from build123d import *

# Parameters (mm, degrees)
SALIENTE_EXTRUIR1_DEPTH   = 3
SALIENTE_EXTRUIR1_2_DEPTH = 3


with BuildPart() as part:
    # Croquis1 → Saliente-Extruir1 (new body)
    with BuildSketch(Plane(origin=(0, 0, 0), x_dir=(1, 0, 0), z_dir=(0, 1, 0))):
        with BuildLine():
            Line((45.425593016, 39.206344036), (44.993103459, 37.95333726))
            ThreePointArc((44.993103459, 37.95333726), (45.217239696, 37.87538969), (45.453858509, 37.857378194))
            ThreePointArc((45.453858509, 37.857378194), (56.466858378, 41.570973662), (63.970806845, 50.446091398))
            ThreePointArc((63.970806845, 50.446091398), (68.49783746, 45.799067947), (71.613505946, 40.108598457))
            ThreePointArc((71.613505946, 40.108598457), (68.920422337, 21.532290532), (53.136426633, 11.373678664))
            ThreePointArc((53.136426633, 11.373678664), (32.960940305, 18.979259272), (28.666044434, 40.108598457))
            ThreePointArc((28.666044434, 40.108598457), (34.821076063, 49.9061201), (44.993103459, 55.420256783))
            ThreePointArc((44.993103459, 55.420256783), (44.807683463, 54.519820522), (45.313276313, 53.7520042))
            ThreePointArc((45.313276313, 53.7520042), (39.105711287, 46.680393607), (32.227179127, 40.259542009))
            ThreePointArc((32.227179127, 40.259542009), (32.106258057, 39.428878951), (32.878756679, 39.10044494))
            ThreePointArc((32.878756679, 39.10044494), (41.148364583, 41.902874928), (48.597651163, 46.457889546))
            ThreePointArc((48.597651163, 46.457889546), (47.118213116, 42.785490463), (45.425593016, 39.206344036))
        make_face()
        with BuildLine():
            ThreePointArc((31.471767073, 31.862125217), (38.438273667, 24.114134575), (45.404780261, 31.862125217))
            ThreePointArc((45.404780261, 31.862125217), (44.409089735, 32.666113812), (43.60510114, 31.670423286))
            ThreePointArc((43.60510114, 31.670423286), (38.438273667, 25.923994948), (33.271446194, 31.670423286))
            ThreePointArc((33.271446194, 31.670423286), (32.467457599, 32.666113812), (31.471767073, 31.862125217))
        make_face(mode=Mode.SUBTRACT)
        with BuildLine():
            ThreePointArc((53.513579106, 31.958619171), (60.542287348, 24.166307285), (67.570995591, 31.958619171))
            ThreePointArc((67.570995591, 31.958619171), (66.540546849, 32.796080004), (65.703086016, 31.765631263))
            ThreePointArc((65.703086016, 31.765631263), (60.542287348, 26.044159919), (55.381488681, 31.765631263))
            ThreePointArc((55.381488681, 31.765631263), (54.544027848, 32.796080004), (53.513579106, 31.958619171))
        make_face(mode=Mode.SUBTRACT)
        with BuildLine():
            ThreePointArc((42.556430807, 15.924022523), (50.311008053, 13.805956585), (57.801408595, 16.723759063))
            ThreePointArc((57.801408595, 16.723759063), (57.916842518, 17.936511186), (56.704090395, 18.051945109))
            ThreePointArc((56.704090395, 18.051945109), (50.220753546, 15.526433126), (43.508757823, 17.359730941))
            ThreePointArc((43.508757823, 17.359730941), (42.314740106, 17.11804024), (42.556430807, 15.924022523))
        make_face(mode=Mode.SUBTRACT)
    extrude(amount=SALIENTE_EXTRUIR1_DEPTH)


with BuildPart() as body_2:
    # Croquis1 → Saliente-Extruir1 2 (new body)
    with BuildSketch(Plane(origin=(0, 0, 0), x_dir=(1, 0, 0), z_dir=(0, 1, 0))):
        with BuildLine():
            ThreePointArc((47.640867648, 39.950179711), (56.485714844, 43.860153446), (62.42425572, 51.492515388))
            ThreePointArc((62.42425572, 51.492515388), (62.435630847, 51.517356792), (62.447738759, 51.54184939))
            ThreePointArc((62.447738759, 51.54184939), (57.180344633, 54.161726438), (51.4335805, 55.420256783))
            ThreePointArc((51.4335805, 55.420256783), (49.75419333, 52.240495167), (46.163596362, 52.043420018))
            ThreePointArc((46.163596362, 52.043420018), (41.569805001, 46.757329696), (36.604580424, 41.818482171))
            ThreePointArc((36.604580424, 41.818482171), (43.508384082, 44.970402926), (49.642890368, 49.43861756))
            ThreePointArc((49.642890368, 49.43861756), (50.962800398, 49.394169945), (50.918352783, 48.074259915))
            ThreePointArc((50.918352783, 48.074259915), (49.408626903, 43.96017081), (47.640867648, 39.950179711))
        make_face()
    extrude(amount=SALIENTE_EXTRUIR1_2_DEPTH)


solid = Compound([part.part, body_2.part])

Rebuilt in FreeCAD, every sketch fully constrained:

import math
import FreeCAD as App
import Part
import Sketcher
from FreeCAD import Vector
Q = App.Units.Quantity

doc = App.newDocument("Part")
body = doc.addObject("PartDesign::Body", "Body")

sketch1 = doc.addObject("Sketcher::SketchObject", "Sketch")
body.addObject(sketch1)
sketch1.AttachmentSupport = (doc.XZ_Plane, [""])
sketch1.MapMode = "FlatFace"
sketch1.addGeometry(Part.LineSegment(Vector(44.993103, -37.953337, 0), Vector(45.425593, -39.206344, 0)), False)
sketch1.addGeometry(Part.ArcOfCircle(Part.Circle(Vector(-14.601756, -69.783781, 0), Vector(0, 0, 1), 67.366626), math.radians(20.258298), math.radians(26.993918)), False)
sketch1.addGeometry(Part.ArcOfCircle(Part.Circle(Vector(24.446093, -77.586629, 0), Vector(0, 0, 1), 39.39919), math.radians(52.193528), math.radians(77.641292)), False)
sketch1.addGeometry(Part.ArcOfCircle(Part.Circle(Vector(32.705558, -39.765771, 0), Vector(0, 0, 1), 0.6875), math.radians(75.408509), math.radians(225.907122)), False)
sketch1.addGeometry(Part.ArcOfCircle(Part.Circle(Vector(-28.891931, -112.630088, 0), Vector(0, 0, 1), 94.72614), math.radians(38.430224), math.radians(49.817899)), False)
sketch1.addGeometry(Part.ArcOfCircle(Part.Circle(Vector(45.987316, -54.746217, 0), Vector(0, 0, 1), 1.201161), math.radians(124.135835), math.radians(214.135835)), False)
sketch1.addGeometry(Part.ArcOfCircle(Part.Circle(Vector(50.416259, -33.276734, 0), Vector(0, 0, 1), 22.797943), math.radians(-162.562204), math.radians(-103.761401)), False)
sketch1.addGeometry(Part.ArcOfCircle(Part.Circle(Vector(49.929591, -33.4296, 0), Vector(0, 0, 1), 22.287832), math.radians(81.72741), math.radians(197.437796)), False)
sketch1.addGeometry(Part.ArcOfCircle(Part.Circle(Vector(49.879205, -33.776142, 0), Vector(0, 0, 1), 22.638017), math.radians(-16.243891), math.radians(81.72741)), False)
sketch1.addGeometry(Part.ArcOfCircle(Part.Circle(Vector(49.215808, -31.543508, 0), Vector(0, 0, 1), 23.979525), math.radians(-52.025075), math.radians(-20.927324)), False)
sketch1.addGeometry(Part.ArcOfCircle(Part.Circle(Vector(44.299101, -59.468731, 0), Vector(0, 0, 1), 21.642182), math.radians(24.639066), math.radians(86.941429)), False)
sketch1.addGeometry(Part.ArcOfCircle(Part.Circle(Vector(45.40478, -38.775881, 0), Vector(0, 0, 1), 0.919813), math.radians(86.941429), math.radians(116.587624)), False)
sketch1.addGeometry(Part.ArcOfCircle(Part.Circle(Vector(43.032594, -16.641877, 0), Vector(0, 0, 1), 0.861421), math.radians(123.556916), math.radians(303.556916)), False)
sketch1.addGeometry(Part.ArcOfCircle(Part.Circle(Vector(49.639708, -26.602623, 0), Vector(0, 0, 1), 11.09142), math.radians(50.437229), math.radians(123.556916)), False)
sketch1.addGeometry(Part.ArcOfCircle(Part.Circle(Vector(57.252749, -17.387852, 0), Vector(0, 0, 1), 0.861421), math.radians(-129.562771), math.radians(50.437229)), False)
sketch1.addGeometry(Part.ArcOfCircle(Part.Circle(Vector(49.639708, -26.602623, 0), Vector(0, 0, 1), 12.814262), math.radians(50.437229), math.radians(123.556916)), False)
sketch1.addGeometry(Part.ArcOfCircle(Part.Circle(Vector(54.447534, -31.862125, 0), Vector(0, 0, 1), 0.938926), math.radians(-174.101268), math.radians(5.898732)), False)
sketch1.addGeometry(Part.ArcOfCircle(Part.Circle(Vector(60.542287, -31.23243, 0), Vector(0, 0, 1), 5.18827), math.radians(-5.898732), math.radians(185.898732)), False)
sketch1.addGeometry(Part.ArcOfCircle(Part.Circle(Vector(66.637041, -31.862125, 0), Vector(0, 0, 1), 0.938926), math.radians(174.101268), math.radians(354.101268)), False)
sketch1.addGeometry(Part.ArcOfCircle(Part.Circle(Vector(60.542287, -31.23243, 0), Vector(0, 0, 1), 7.066123), math.radians(-5.898732), math.radians(185.898732)), False)
sketch1.addGeometry(Part.ArcOfCircle(Part.Circle(Vector(32.371607, -31.766274, 0), Vector(0, 0, 1), 0.90493), math.radians(-173.919777), math.radians(6.080223)), False)
sketch1.addGeometry(Part.ArcOfCircle(Part.Circle(Vector(38.438274, -31.120053, 0), Vector(0, 0, 1), 5.196058), math.radians(-6.080223), math.radians(186.080223)), False)
sketch1.addGeometry(Part.ArcOfCircle(Part.Circle(Vector(44.504941, -31.766274, 0), Vector(0, 0, 1), 0.90493), math.radians(173.919777), math.radians(353.919777)), False)
sketch1.addGeometry(Part.ArcOfCircle(Part.Circle(Vector(38.438274, -31.120053, 0), Vector(0, 0, 1), 7.005918), math.radians(-6.080223), math.radians(186.080223)), False)
sketch1.addConstraint(Sketcher.Constraint("Coincident", 0, 2, 1, 2))
sketch1.addConstraint(Sketcher.Constraint("Coincident", 1, 1, 2, 1))
sketch1.addConstraint(Sketcher.Constraint("Coincident", 2, 2, 3, 1))
sketch1.addConstraint(Sketcher.Constraint("Coincident", 3, 2, 4, 2))
sketch1.addConstraint(Sketcher.Constraint("Coincident", 4, 1, 5, 1))
sketch1.addConstraint(Sketcher.Constraint("Coincident", 5, 2, 6, 2))
sketch1.addConstraint(Sketcher.Constraint("Coincident", 6, 1, 7, 2))
sketch1.addConstraint(Sketcher.Constraint("Coincident", 7, 1, 8, 2))
sketch1.addConstraint(Sketcher.Constraint("Coincident", 8, 1, 9, 2))
sketch1.addConstraint(Sketcher.Constraint("Coincident", 9, 1, 10, 1))
sketch1.addConstraint(Sketcher.Constraint("Coincident", 10, 2, 11, 1))
sketch1.addConstraint(Sketcher.Constraint("Coincident", 11, 2, 0, 1))
sketch1.addConstraint(Sketcher.Constraint("Coincident", 12, 2, 13, 2))
sketch1.addConstraint(Sketcher.Constraint("Coincident", 13, 1, 14, 1))
sketch1.addConstraint(Sketcher.Constraint("Coincident", 14, 2, 15, 1))
sketch1.addConstraint(Sketcher.Constraint("Coincident", 15, 2, 12, 1))
sketch1.addConstraint(Sketcher.Constraint("Coincident", 16, 2, 17, 2))
sketch1.addConstraint(Sketcher.Constraint("Coincident", 17, 1, 18, 1))
sketch1.addConstraint(Sketcher.Constraint("Coincident", 18, 2, 19, 1))
sketch1.addConstraint(Sketcher.Constraint("Coincident", 19, 2, 16, 1))
sketch1.addConstraint(Sketcher.Constraint("Coincident", 20, 2, 21, 2))
sketch1.addConstraint(Sketcher.Constraint("Coincident", 21, 1, 22, 1))
sketch1.addConstraint(Sketcher.Constraint("Coincident", 22, 2, 23, 1))
sketch1.addConstraint(Sketcher.Constraint("Coincident", 23, 2, 20, 1))
sketch1.addConstraint(Sketcher.Constraint("Coincident", 15, 3, 13, 3))
sketch1.addConstraint(Sketcher.Constraint("Coincident", 19, 3, 17, 3))
sketch1.addConstraint(Sketcher.Constraint("Coincident", 23, 3, 21, 3))
sketch1.addConstraint(Sketcher.Constraint("Radius", 3, Q("0.6875 mm")))
sketch1.addConstraint(Sketcher.Constraint("Radius", 2, Q("39.39919 mm")))
sketch1.addConstraint(Sketcher.Constraint("Radius", 4, Q("94.72614 mm")))
sketch1.addConstraint(Sketcher.Constraint("Radius", 5, Q("1.201161 mm")))
sketch1.addConstraint(Sketcher.Constraint("Radius", 7, Q("22.287832 mm")))
sketch1.addConstraint(Sketcher.Constraint("Radius", 10, Q("21.642182 mm")))
sketch1.addConstraint(Sketcher.Constraint("Radius", 12, Q("0.861421 mm")))
sketch1.addConstraint(Sketcher.Constraint("Radius", 13, Q("11.09142 mm")))
sketch1.addConstraint(Sketcher.Constraint("Radius", 17, Q("5.18827 mm")))
sketch1.addConstraint(Sketcher.Constraint("Radius", 20, Q("0.90493 mm")))
sketch1.addConstraint(Sketcher.Constraint("Radius", 1, Q("67.366626 mm")))
sketch1.addConstraint(Sketcher.Constraint("Radius", 6, Q("22.797943 mm")))
sketch1.addConstraint(Sketcher.Constraint("Radius", 8, Q("22.638017 mm")))
sketch1.addConstraint(Sketcher.Constraint("Radius", 9, Q("23.979525 mm")))
sketch1.addConstraint(Sketcher.Constraint("Radius", 11, Q("0.919813 mm")))
sketch1.addConstraint(Sketcher.Constraint("Radius", 16, Q("0.938926 mm")))
sketch1.addConstraint(Sketcher.Constraint("Radius", 21, Q("5.196058 mm")))
sketch1.addConstraint(Sketcher.Constraint("DistanceY", 7, 3, -1, 1, Q("33.4296 mm")))
sketch1.addConstraint(Sketcher.Constraint("DistanceX", -1, 1, 10, 3, Q("44.299101 mm")))
sketch1.addConstraint(Sketcher.Constraint("DistanceY", 6, 1, -1, 1, Q("40.108598 mm")))
sketch1.addConstraint(Sketcher.Constraint("DistanceY", 8, 1, -1, 1, Q("40.108598 mm")))
sketch1.addConstraint(Sketcher.Constraint("DistanceX", -1, 1, 21, 1, Q("43.605101 mm")))
sketch1.addConstraint(Sketcher.Constraint("DistanceX", 3, 3, 6, 3, Q("17.710701 mm")))
sketch1.addConstraint(Sketcher.Constraint("DistanceX", 2, 3, 7, 3, Q("25.483498 mm")))
sketch1.addConstraint(Sketcher.Constraint("DistanceY", 2, 3, 10, 3, Q("18.117898 mm")))
sketch1.addConstraint(Sketcher.Constraint("DistanceX", 9, 3, 13, 3, Q("0.423899 mm")))
sketch1.addConstraint(Sketcher.Constraint("DistanceY", 16, 3, 15, 3, Q("5.259502 mm")))
sketch1.addConstraint(Sketcher.Constraint("DistanceX", 20, 3, 9, 3, Q("16.844202 mm")))
sketch1.addConstraint(Sketcher.Constraint("DistanceX", 20, 3, 8, 3, Q("17.507599 mm")))
sketch1.addConstraint(Sketcher.Constraint("DistanceX", 3, 3, 2, 2, Q("0.173199 mm")))
sketch1.addConstraint(Sketcher.Constraint("DistanceY", 12, 3, 7, 1, Q("5.268198 mm")))
sketch1.addConstraint(Sketcher.Constraint("DistanceX", 9, 1, 8, 1, Q("7.642699 mm")))
sketch1.addConstraint(Sketcher.Constraint("DistanceY", 9, 1, 1, 1, Q("3.988202 mm")))
sketch1.addConstraint(Sketcher.Constraint("DistanceX", 11, 2, 8, 3, Q("4.886102 mm")))
sketch1.addConstraint(Sketcher.Constraint("DistanceX", 13, 3, 14, 2, Q("8.161701 mm")))
sketch1.addConstraint(Sketcher.Constraint("DistanceY", 13, 3, 15, 2, Q("10.678601 mm")))
sketch1.addConstraint(Sketcher.Constraint("DistanceX", 16, 2, 19, 3, Q("5.160799 mm")))
sketch1.addConstraint(Sketcher.Constraint("DistanceX", 17, 3, 17, 1, Q("5.160799 mm")))
sketch1.addConstraint(Sketcher.Constraint("DistanceY", 22, 2, 21, 1, Q("0.191702 mm")))
sketch1.addConstraint(Sketcher.Constraint("DistanceY", 23, 2, 20, 2, Q("0.191702 mm")))
sketch1.addConstraint(Sketcher.Constraint("DistanceY", 1, 3, -1, 1, Q("69.783781 mm")))
sketch1.addConstraint(Sketcher.Constraint("DistanceY", 2, 3, -1, 1, Q("77.586629 mm")))
sketch1.addConstraint(Sketcher.Constraint("DistanceY", 3, 3, -1, 1, Q("39.765771 mm")))
sketch1.addConstraint(Sketcher.Constraint("DistanceX", 4, 3, -1, 1, Q("28.891931 mm")))
sketch1.addConstraint(Sketcher.Constraint("DistanceX", -1, 1, 6, 3, Q("50.416259 mm")))
sketch1.addConstraint(Sketcher.Constraint("DistanceX", -1, 1, 11, 3, Q("45.40478 mm")))
sketch1.addConstraint(Sketcher.Constraint("DistanceX", -1, 1, 14, 3, Q("57.252749 mm")))
sketch1.addConstraint(Sketcher.Constraint("DistanceY", 17, 3, -1, 1, Q("31.23243 mm")))
sketch1.addConstraint(Sketcher.Constraint("DistanceX", -1, 1, 18, 3, Q("66.637041 mm")))
sketch1.addConstraint(Sketcher.Constraint("DistanceX", -1, 1, 22, 3, Q("44.504941 mm")))
sketch1.addConstraint(Sketcher.Constraint("DistanceX", -1, 1, 3, 2, Q("32.227179 mm")))
sketch1.addConstraint(Sketcher.Constraint("DistanceY", 7, 1, -1, 1, Q("11.373679 mm")))
sketch1.addConstraint(Sketcher.Constraint("DistanceX", -1, 1, 10, 2, Q("45.453859 mm")))
sketch1.addConstraint(Sketcher.Constraint("DistanceY", 12, 2, -1, 1, Q("17.359731 mm")))
sketch1.addConstraint(Sketcher.Constraint("DistanceX", -1, 1, 13, 1, Q("56.70409 mm")))
sketch1.addConstraint(Sketcher.Constraint("DistanceY", 14, 2, -1, 1, Q("16.723759 mm")))
sketch1.addConstraint(Sketcher.Constraint("DistanceX", -1, 1, 16, 2, Q("55.381489 mm")))
sketch1.addConstraint(Sketcher.Constraint("DistanceY", 18, 2, -1, 1, Q("31.958619 mm")))
sketch1.addConstraint(Sketcher.Constraint("DistanceX", -1, 1, 19, 2, Q("53.513579 mm")))
sketch1.addConstraint(Sketcher.Constraint("DistanceX", 3, 3, 5, 3, Q("13.281758 mm")))
sketch1.addConstraint(Sketcher.Constraint("DistanceY", 4, 3, 5, 3, Q("57.883871 mm")))
sketch1.addConstraint(Sketcher.Constraint("DistanceY", 20, 3, 21, 3, Q("0.646222 mm")))
sketch1.addConstraint(Sketcher.Constraint("DistanceY", 11, 3, 21, 3, Q("7.655828 mm")))
sketch1.addConstraint(Sketcher.Constraint("DistanceY", 0, 2, 22, 3, Q("7.44007 mm")))
sketch1.addConstraint(Sketcher.Constraint("DistanceX", 20, 3, 20, 2, Q("0.89984 mm")))
pad1 = doc.addObject("PartDesign::Pad", "Pad")
body.addObject(pad1)
pad1.Profile = sketch1
pad1.Length = 3
pad1.Reversed = True
body2 = doc.addObject("PartDesign::Body", "Body001")

sketch2 = doc.addObject("Sketcher::SketchObject", "Sketch001")
body2.addObject(sketch2)
sketch2.AttachmentSupport = (doc.getObject("XZ_Plane001"), [""])
sketch2.MapMode = "FlatFace"
sketch2.addGeometry(Part.ArcOfCircle(Part.Circle(Vector(44.299101, -59.468731, 0), Vector(0, 0, 1), 19.802556), math.radians(23.752533), math.radians(80.284601)), False)
sketch2.addGeometry(Part.ArcOfCircle(Part.Circle(Vector(63.266155, -51.122027, 0), Vector(0, 0, 1), 0.919813), math.radians(-156.247466), math.radians(-152.843535)), False)
sketch2.addGeometry(Part.ArcOfCircle(Part.Circle(Vector(49.215808, -31.543508, 0), Vector(0, 0, 1), 23.979525), math.radians(-84.693354), math.radians(-56.50933)), False)
sketch2.addGeometry(Part.ArcOfCircle(Part.Circle(Vector(47.784793, -55.313995, 0), Vector(0, 0, 1), 3.650335), math.radians(-1.668117), math.radians(116.367225)), False)
sketch2.addGeometry(Part.ArcOfCircle(Part.Circle(Vector(-28.891931, -112.630088, 0), Vector(0, 0, 1), 96.457641), math.radians(38.911322), math.radians(47.233016)), False)
sketch2.addGeometry(Part.ArcOfCircle(Part.Circle(Vector(24.446093, -77.586629, 0), Vector(0, 0, 1), 37.778157), math.radians(48.166567), math.radians(71.225819)), False)
sketch2.addGeometry(Part.ArcOfCircle(Part.Circle(Vector(50.280622, -48.756439, 0), Vector(0, 0, 1), 0.933846), math.radians(-133.071309), math.radians(46.928691)), False)
sketch2.addGeometry(Part.ArcOfCircle(Part.Circle(Vector(-14.601756, -69.783781, 0), Vector(0, 0, 1), 69.023097), math.radians(18.332168), math.radians(25.608933)), False)
sketch2.addConstraint(Sketcher.Constraint("Tangent", 0, 1, 1, 1))
sketch2.addConstraint(Sketcher.Constraint("Coincident", 1, 2, 2, 2))
sketch2.addConstraint(Sketcher.Constraint("Coincident", 2, 1, 3, 1))
sketch2.addConstraint(Sketcher.Constraint("Coincident", 3, 2, 4, 1))
sketch2.addConstraint(Sketcher.Constraint("Coincident", 4, 2, 5, 2))
sketch2.addConstraint(Sketcher.Constraint("Coincident", 5, 1, 6, 1))
sketch2.addConstraint(Sketcher.Constraint("Coincident", 6, 2, 7, 1))
sketch2.addConstraint(Sketcher.Constraint("Coincident", 7, 2, 0, 2))
sketch2.addConstraint(Sketcher.Constraint("Radius", 4, Q("96.457641 mm")))
sketch2.addConstraint(Sketcher.Constraint("Radius", 0, Q("19.802556 mm")))
sketch2.addConstraint(Sketcher.Constraint("Radius", 1, Q("0.919813 mm")))
sketch2.addConstraint(Sketcher.Constraint("Radius", 2, Q("23.979525 mm")))
sketch2.addConstraint(Sketcher.Constraint("Radius", 3, Q("3.650335 mm")))
sketch2.addConstraint(Sketcher.Constraint("Radius", 5, Q("37.778157 mm")))
sketch2.addConstraint(Sketcher.Constraint("Radius", 6, Q("0.933846 mm")))
sketch2.addConstraint(Sketcher.Constraint("Radius", 7, Q("69.023097 mm")))
sketch2.addConstraint(Sketcher.Constraint("DistanceX", -1, 1, 0, 3, Q("44.299101 mm")))
sketch2.addConstraint(Sketcher.Constraint("DistanceY", 5, 3, 0, 3, Q("18.117898 mm")))
sketch2.addConstraint(Sketcher.Constraint("DistanceX", 5, 3, 3, 3, Q("23.3387 mm")))
sketch2.addConstraint(Sketcher.Constraint("DistanceX", 0, 1, 1, 3, Q("0.841899 mm")))
sketch2.addConstraint(Sketcher.Constraint("DistanceY", 0, 3, -1, 1, Q("59.468731 mm")))
sketch2.addConstraint(Sketcher.Constraint("DistanceX", -1, 1, 2, 3, Q("49.215808 mm")))
sketch2.addConstraint(Sketcher.Constraint("DistanceY", 2, 3, -1, 1, Q("31.543508 mm")))
sketch2.addConstraint(Sketcher.Constraint("DistanceX", 4, 3, -1, 1, Q("28.891931 mm")))
sketch2.addConstraint(Sketcher.Constraint("DistanceX", -1, 1, 6, 3, Q("50.280622 mm")))
sketch2.addConstraint(Sketcher.Constraint("DistanceY", 6, 3, -1, 1, Q("48.756439 mm")))
sketch2.addConstraint(Sketcher.Constraint("DistanceY", 7, 3, -1, 1, Q("69.783781 mm")))
sketch2.addConstraint(Sketcher.Constraint("DistanceY", 3, 2, -1, 1, Q("52.04342 mm")))
sketch2.addConstraint(Sketcher.Constraint("DistanceX", -1, 1, 4, 2, Q("36.60458 mm")))
sketch2.addConstraint(Sketcher.Constraint("DistanceX", -1, 1, 5, 1, Q("49.64289 mm")))
sketch2.addConstraint(Sketcher.Constraint("DistanceY", 6, 2, -1, 1, Q("48.07426 mm")))
pad2 = doc.addObject("PartDesign::Pad", "Pad001")
body2.addObject(pad2)
pad2.Profile = sketch2
pad2.Length = 3
pad2.Reversed = True

doc.recompute()
